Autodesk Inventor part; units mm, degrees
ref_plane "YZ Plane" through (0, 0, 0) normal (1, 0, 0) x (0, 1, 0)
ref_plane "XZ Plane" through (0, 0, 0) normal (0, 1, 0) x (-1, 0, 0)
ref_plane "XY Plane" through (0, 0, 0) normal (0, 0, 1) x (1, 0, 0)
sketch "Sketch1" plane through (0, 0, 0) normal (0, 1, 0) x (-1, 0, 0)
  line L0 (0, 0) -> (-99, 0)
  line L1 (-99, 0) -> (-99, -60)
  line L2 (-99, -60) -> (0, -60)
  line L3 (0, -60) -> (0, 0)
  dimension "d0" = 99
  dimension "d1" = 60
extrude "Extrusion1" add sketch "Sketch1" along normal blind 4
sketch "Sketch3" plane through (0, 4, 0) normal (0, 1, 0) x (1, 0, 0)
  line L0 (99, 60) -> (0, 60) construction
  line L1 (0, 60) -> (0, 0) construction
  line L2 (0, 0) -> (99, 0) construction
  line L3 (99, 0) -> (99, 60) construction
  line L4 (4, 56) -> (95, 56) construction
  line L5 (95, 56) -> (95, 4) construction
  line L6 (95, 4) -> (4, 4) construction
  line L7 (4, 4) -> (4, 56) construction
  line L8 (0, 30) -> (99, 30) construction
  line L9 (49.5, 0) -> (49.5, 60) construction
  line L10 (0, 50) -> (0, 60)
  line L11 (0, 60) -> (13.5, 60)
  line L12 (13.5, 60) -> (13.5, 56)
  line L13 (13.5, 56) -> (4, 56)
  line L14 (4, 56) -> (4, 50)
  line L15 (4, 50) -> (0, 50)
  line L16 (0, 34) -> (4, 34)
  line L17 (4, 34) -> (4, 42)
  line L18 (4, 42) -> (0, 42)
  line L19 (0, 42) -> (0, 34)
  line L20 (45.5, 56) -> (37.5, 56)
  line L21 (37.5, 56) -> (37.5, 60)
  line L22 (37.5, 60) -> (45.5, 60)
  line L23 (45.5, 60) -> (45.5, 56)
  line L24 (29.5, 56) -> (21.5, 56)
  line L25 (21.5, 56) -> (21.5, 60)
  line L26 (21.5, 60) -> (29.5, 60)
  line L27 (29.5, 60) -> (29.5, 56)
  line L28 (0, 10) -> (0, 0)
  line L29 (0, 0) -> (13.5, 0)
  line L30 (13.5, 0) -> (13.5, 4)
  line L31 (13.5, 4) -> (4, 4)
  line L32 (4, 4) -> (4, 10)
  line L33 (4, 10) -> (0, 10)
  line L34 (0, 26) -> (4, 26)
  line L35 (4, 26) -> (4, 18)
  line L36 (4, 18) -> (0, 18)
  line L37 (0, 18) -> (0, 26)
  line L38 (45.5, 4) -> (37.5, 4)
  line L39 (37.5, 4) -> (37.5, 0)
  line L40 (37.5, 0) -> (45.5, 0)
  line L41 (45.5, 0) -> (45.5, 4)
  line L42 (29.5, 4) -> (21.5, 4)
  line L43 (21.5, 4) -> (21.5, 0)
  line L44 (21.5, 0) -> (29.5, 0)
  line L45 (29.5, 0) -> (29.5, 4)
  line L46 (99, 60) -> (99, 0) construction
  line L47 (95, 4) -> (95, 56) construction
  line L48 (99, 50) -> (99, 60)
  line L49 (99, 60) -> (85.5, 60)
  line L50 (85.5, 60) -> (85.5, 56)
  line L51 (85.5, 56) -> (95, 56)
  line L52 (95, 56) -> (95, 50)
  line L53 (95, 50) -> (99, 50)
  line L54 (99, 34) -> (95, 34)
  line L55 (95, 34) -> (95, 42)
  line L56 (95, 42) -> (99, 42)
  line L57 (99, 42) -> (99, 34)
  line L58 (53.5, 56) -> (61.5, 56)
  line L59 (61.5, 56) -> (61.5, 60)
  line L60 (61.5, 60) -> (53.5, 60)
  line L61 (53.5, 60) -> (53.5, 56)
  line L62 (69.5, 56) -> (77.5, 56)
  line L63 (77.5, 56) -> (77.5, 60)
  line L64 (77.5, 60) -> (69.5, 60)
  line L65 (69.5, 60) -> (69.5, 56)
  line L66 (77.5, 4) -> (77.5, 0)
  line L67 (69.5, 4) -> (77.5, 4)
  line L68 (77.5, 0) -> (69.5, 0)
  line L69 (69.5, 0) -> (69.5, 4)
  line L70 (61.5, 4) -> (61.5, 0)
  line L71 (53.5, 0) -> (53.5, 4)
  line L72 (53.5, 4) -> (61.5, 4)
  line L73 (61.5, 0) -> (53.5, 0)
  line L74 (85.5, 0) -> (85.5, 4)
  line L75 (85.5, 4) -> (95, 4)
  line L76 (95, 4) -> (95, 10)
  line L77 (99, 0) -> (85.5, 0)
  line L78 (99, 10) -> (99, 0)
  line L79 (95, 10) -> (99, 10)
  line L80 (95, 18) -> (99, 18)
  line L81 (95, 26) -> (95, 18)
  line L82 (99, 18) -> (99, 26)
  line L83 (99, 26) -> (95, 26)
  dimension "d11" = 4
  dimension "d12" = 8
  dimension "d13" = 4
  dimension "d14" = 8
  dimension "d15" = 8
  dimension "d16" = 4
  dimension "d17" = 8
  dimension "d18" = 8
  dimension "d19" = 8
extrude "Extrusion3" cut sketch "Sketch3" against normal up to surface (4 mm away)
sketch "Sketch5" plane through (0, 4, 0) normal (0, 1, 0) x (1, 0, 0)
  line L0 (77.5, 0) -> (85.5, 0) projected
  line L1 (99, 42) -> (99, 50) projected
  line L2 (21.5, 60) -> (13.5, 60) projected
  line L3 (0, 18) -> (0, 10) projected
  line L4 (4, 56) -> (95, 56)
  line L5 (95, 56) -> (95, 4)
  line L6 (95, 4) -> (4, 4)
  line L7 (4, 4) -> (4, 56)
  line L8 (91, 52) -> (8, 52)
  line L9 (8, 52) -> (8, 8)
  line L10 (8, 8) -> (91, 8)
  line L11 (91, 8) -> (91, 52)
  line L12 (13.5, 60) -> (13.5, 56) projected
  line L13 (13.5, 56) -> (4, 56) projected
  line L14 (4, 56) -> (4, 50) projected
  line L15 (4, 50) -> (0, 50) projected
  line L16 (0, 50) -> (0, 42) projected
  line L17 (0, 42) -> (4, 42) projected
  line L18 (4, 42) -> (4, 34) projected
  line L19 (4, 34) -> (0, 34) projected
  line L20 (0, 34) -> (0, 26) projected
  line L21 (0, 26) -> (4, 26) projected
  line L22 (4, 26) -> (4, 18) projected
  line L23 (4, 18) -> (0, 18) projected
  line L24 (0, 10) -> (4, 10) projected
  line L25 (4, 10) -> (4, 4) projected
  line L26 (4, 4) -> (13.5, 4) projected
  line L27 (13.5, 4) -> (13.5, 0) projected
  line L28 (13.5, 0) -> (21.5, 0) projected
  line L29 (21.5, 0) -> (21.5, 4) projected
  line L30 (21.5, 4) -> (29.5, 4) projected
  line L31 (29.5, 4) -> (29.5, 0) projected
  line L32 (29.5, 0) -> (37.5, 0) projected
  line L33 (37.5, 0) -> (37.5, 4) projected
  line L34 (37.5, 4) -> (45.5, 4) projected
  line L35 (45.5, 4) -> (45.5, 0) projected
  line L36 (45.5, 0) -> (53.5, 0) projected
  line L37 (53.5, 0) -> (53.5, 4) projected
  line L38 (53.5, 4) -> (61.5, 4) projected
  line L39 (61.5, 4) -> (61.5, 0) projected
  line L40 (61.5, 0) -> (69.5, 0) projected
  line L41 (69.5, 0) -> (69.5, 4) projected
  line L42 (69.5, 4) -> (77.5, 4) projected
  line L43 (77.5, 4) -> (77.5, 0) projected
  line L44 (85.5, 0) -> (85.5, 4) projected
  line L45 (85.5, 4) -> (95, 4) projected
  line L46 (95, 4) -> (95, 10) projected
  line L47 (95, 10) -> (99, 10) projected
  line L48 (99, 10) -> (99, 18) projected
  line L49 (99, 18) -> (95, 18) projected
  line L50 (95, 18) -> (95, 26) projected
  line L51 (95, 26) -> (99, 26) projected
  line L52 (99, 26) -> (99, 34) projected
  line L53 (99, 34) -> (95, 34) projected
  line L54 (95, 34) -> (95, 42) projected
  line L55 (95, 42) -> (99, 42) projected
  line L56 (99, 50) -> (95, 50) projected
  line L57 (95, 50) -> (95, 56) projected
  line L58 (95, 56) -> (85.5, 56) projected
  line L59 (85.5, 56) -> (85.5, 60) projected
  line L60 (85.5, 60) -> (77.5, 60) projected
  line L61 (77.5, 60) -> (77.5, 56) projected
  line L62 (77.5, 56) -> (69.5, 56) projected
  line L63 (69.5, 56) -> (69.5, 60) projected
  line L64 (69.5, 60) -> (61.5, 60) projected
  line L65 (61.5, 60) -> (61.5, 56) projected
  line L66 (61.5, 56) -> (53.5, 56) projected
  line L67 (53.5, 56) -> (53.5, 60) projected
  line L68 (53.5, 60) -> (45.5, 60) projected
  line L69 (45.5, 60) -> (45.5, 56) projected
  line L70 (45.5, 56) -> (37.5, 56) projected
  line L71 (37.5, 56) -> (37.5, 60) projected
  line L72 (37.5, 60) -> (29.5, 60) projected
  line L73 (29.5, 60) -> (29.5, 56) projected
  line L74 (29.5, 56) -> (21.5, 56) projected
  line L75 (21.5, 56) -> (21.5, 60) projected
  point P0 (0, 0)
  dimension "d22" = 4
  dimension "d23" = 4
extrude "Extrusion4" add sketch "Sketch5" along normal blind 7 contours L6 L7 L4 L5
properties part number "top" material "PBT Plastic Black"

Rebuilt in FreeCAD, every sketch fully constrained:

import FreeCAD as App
import Part
import Sketcher

V = App.Vector
Q = App.Units.Quantity

doc = App.newDocument("Part")
body = doc.addObject("PartDesign::Body", "Body")

sketch1 = body.newObject("Sketcher::SketchObject", "Sketch")
sketch1.AttachmentSupport = (doc.getObject("XZ_Plane"), [""])
sketch1.MapMode = "FlatFace"
sketch1.addGeometry([
    Part.LineSegment(V(0, -60, 0), V(0, 0, 0)),
    Part.LineSegment(V(0, 0, 0), V(99, 0, 0)),
    Part.LineSegment(V(99, 0, 0), V(99, -60, 0)),
    Part.LineSegment(V(99, -60, 0), V(0, -60, 0)),
], False)
sketch1.addConstraint([
    Sketcher.Constraint("Coincident", 0, 2, 1, 1),
    Sketcher.Constraint("Coincident", 1, 2, 2, 1),
    Sketcher.Constraint("Coincident", 2, 2, 3, 1),
    Sketcher.Constraint("Coincident", 3, 2, 0, 1),
    Sketcher.Constraint("Vertical", 0),
    Sketcher.Constraint("Horizontal", 1),
    Sketcher.Constraint("Vertical", 2),
    Sketcher.Constraint("Horizontal", 3),
    Sketcher.Constraint("Coincident", 0, 2, -1, 1),
    Sketcher.Constraint("DistanceX", 1, 1, 1, 2, Q("99 mm")),
    Sketcher.Constraint("DistanceY", 0, 1, 0, 2, Q("60 mm")),
])
pad1 = body.newObject("PartDesign::Pad", "Pad")
pad1.Profile = sketch1
pad1.Length = 4
pad1.Reversed = True

sketch2 = body.newObject("Sketcher::SketchObject", "Sketch001")
sketch2.AttachmentSupport = (doc.getObject("XZ_Plane"), [""])
sketch2.MapMode = "FlatFace"
sketch2.AttachmentOffset = App.Placement(V(0, 0, -4), App.Rotation())
sketch2.addGeometry([
    Part.LineSegment(V(0, -60, 0), V(0, -50, 0)),
    Part.LineSegment(V(0, -50, 0), V(4, -50, 0)),
    Part.LineSegment(V(4, -50, 0), V(4, -56, 0)),
    Part.LineSegment(V(4, -56, 0), V(13.5, -56, 0)),
    Part.LineSegment(V(13.5, -56, 0), V(13.5, -60, 0)),
    Part.LineSegment(V(13.5, -60, 0), V(0, -60, 0)),
    Part.LineSegment(V(0, -42, 0), V(0, -34, 0)),
    Part.LineSegment(V(0, -34, 0), V(4, -34, 0)),
    Part.LineSegment(V(4, -34, 0), V(4, -42, 0)),
    Part.LineSegment(V(4, -42, 0), V(0, -42, 0)),
    Part.LineSegment(V(37.5, -56, 0), V(45.5, -56, 0)),
    Part.LineSegment(V(45.5, -56, 0), V(45.5, -60, 0)),
    Part.LineSegment(V(45.5, -60, 0), V(37.5, -60, 0)),
    Part.LineSegment(V(37.5, -60, 0), V(37.5, -56, 0)),
    Part.LineSegment(V(21.5, -56, 0), V(29.5, -56, 0)),
    Part.LineSegment(V(29.5, -56, 0), V(29.5, -60, 0)),
    Part.LineSegment(V(29.5, -60, 0), V(21.5, -60, 0)),
    Part.LineSegment(V(21.5, -60, 0), V(21.5, -56, 0)),
    Part.LineSegment(V(4, -10, 0), V(0, -10, 0)),
    Part.LineSegment(V(0, -10, 0), V(0, 0, 0)),
    Part.LineSegment(V(0, 0, 0), V(13.5, 0, 0)),
    Part.LineSegment(V(13.5, 0, 0), V(13.5, -4, 0)),
    Part.LineSegment(V(13.5, -4, 0), V(4, -4, 0)),
    Part.LineSegment(V(4, -4, 0), V(4, -10, 0)),
    Part.LineSegment(V(4, -26, 0), V(0, -26, 0)),
    Part.LineSegment(V(0, -26, 0), V(0, -18, 0)),
    Part.LineSegment(V(0, -18, 0), V(4, -18, 0)),
    Part.LineSegment(V(4, -18, 0), V(4, -26, 0)),
    Part.LineSegment(V(45.5, 0, 0), V(45.5, -4, 0)),
    Part.LineSegment(V(45.5, -4, 0), V(37.5, -4, 0)),
    Part.LineSegment(V(37.5, -4, 0), V(37.5, 0, 0)),
    Part.LineSegment(V(37.5, 0, 0), V(45.5, 0, 0)),
    Part.LineSegment(V(29.5, 0, 0), V(29.5, -4, 0)),
    Part.LineSegment(V(29.5, -4, 0), V(21.5, -4, 0)),
    Part.LineSegment(V(21.5, -4, 0), V(21.5, 0, 0)),
    Part.LineSegment(V(21.5, 0, 0), V(29.5, 0, 0)),
    Part.LineSegment(V(95, -50, 0), V(99, -50, 0)),
    Part.LineSegment(V(99, -50, 0), V(99, -60, 0)),
    Part.LineSegment(V(99, -60, 0), V(85.5, -60, 0)),
    Part.LineSegment(V(85.5, -60, 0), V(85.5, -56, 0)),
    Part.LineSegment(V(85.5, -56, 0), V(95, -56, 0)),
    Part.LineSegment(V(95, -56, 0), V(95, -50, 0)),
    Part.LineSegment(V(95, -34, 0), V(99, -34, 0)),
    Part.LineSegment(V(99, -34, 0), V(99, -42, 0)),
    Part.LineSegment(V(99, -42, 0), V(95, -42, 0)),
    Part.LineSegment(V(95, -42, 0), V(95, -34, 0)),
    Part.LineSegment(V(53.5, -60, 0), V(53.5, -56, 0)),
    Part.LineSegment(V(53.5, -56, 0), V(61.5, -56, 0)),
    Part.LineSegment(V(61.5, -56, 0), V(61.5, -60, 0)),
    Part.LineSegment(V(61.5, -60, 0), V(53.5, -60, 0)),
    Part.LineSegment(V(69.5, -60, 0), V(69.5, -56, 0)),
    Part.LineSegment(V(69.5, -56, 0), V(77.5, -56, 0)),
    Part.LineSegment(V(77.5, -56, 0), V(77.5, -60, 0)),
    Part.LineSegment(V(77.5, -60, 0), V(69.5, -60, 0)),
    Part.LineSegment(V(77.5, 0, 0), V(77.5, -4, 0)),
    Part.LineSegment(V(77.5, -4, 0), V(69.5, -4, 0)),
    Part.LineSegment(V(69.5, -4, 0), V(69.5, 0, 0)),
    Part.LineSegment(V(69.5, 0, 0), V(77.5, 0, 0)),
    Part.LineSegment(V(61.5, 0, 0), V(61.5, -4, 0)),
    Part.LineSegment(V(61.5, -4, 0), V(53.5, -4, 0)),
    Part.LineSegment(V(53.5, -4, 0), V(53.5, 0, 0)),
    Part.LineSegment(V(53.5, 0, 0), V(61.5, 0, 0)),
    Part.LineSegment(V(85.5, -4, 0), V(85.5, 0, 0)),
    Part.LineSegment(V(85.5, 0, 0), V(99, 0, 0)),
    Part.LineSegment(V(99, 0, 0), V(99, -10, 0)),
    Part.LineSegment(V(99, -10, 0), V(95, -10, 0)),
    Part.LineSegment(V(95, -10, 0), V(95, -4, 0)),
    Part.LineSegment(V(95, -4, 0), V(85.5, -4, 0)),
    Part.LineSegment(V(95, -26, 0), V(95, -18, 0)),
    Part.LineSegment(V(95, -18, 0), V(99, -18, 0)),
    Part.LineSegment(V(99, -18, 0), V(99, -26, 0)),
    Part.LineSegment(V(99, -26, 0), V(95, -26, 0)),
], False)
sketch2.addConstraint([
    Sketcher.Constraint("Coincident", 0, 2, 1, 1),
    Sketcher.Constraint("Coincident", 1, 2, 2, 1),
    Sketcher.Constraint("Coincident", 2, 2, 3, 1),
    Sketcher.Constraint("Coincident", 3, 2, 4, 1),
    Sketcher.Constraint("Coincident", 4, 2, 5, 1),
    Sketcher.Constraint("Coincident", 5, 2, 0, 1),
    Sketcher.Constraint("Coincident", 6, 2, 7, 1),
    Sketcher.Constraint("Coincident", 7, 2, 8, 1),
    Sketcher.Constraint("Coincident", 8, 2, 9, 1),
    Sketcher.Constraint("Coincident", 9, 2, 6, 1),
    Sketcher.Constraint("Coincident", 10, 2, 11, 1),
    Sketcher.Constraint("Coincident", 11, 2, 12, 1),
    Sketcher.Constraint("Coincident", 12, 2, 13, 1),
    Sketcher.Constraint("Coincident", 13, 2, 10, 1),
    Sketcher.Constraint("Coincident", 14, 2, 15, 1),
    Sketcher.Constraint("Coincident", 15, 2, 16, 1),
    Sketcher.Constraint("Coincident", 16, 2, 17, 1),
    Sketcher.Constraint("Coincident", 17, 2, 14, 1),
    Sketcher.Constraint("Coincident", 18, 2, 19, 1),
    Sketcher.Constraint("Coincident", 19, 2, 20, 1),
    Sketcher.Constraint("Coincident", 20, 2, 21, 1),
    Sketcher.Constraint("Coincident", 21, 2, 22, 1),
    Sketcher.Constraint("Coincident", 22, 2, 23, 1),
    Sketcher.Constraint("Coincident", 23, 2, 18, 1),
    Sketcher.Constraint("Coincident", 24, 2, 25, 1),
    Sketcher.Constraint("Coincident", 25, 2, 26, 1),
    Sketcher.Constraint("Coincident", 26, 2, 27, 1),
    Sketcher.Constraint("Coincident", 27, 2, 24, 1),
    Sketcher.Constraint("Coincident", 28, 2, 29, 1),
    Sketcher.Constraint("Coincident", 29, 2, 30, 1),
    Sketcher.Constraint("Coincident", 30, 2, 31, 1),
    Sketcher.Constraint("Coincident", 31, 2, 28, 1),
    Sketcher.Constraint("Coincident", 32, 2, 33, 1),
    Sketcher.Constraint("Coincident", 33, 2, 34, 1),
    Sketcher.Constraint("Coincident", 34, 2, 35, 1),
    Sketcher.Constraint("Coincident", 35, 2, 32, 1),
    Sketcher.Constraint("Coincident", 36, 2, 37, 1),
    Sketcher.Constraint("Coincident", 37, 2, 38, 1),
    Sketcher.Constraint("Coincident", 38, 2, 39, 1),
    Sketcher.Constraint("Coincident", 39, 2, 40, 1),
    Sketcher.Constraint("Coincident", 40, 2, 41, 1),
    Sketcher.Constraint("Coincident", 41, 2, 36, 1),
    Sketcher.Constraint("Coincident", 42, 2, 43, 1),
    Sketcher.Constraint("Coincident", 43, 2, 44, 1),
    Sketcher.Constraint("Coincident", 44, 2, 45, 1),
    Sketcher.Constraint("Coincident", 45, 2, 42, 1),
    Sketcher.Constraint("Coincident", 46, 2, 47, 1),
    Sketcher.Constraint("Coincident", 47, 2, 48, 1),
    Sketcher.Constraint("Coincident", 48, 2, 49, 1),
    Sketcher.Constraint("Coincident", 49, 2, 46, 1),
    Sketcher.Constraint("Coincident", 50, 2, 51, 1),
    Sketcher.Constraint("Coincident", 51, 2, 52, 1),
    Sketcher.Constraint("Coincident", 52, 2, 53, 1),
    Sketcher.Constraint("Coincident", 53, 2, 50, 1),
    Sketcher.Constraint("Coincident", 54, 2, 55, 1),
    Sketcher.Constraint("Coincident", 55, 2, 56, 1),
    Sketcher.Constraint("Coincident", 56, 2, 57, 1),
    Sketcher.Constraint("Coincident", 57, 2, 54, 1),
    Sketcher.Constraint("Coincident", 58, 2, 59, 1),
    Sketcher.Constraint("Coincident", 59, 2, 60, 1),
    Sketcher.Constraint("Coincident", 60, 2, 61, 1),
    Sketcher.Constraint("Coincident", 61, 2, 58, 1),
    Sketcher.Constraint("Coincident", 62, 2, 63, 1),
    Sketcher.Constraint("Coincident", 63, 2, 64, 1),
    Sketcher.Constraint("Coincident", 64, 2, 65, 1),
    Sketcher.Constraint("Coincident", 65, 2, 66, 1),
    Sketcher.Constraint("Coincident", 66, 2, 67, 1),
    Sketcher.Constraint("Coincident", 67, 2, 62, 1),
    Sketcher.Constraint("Coincident", 68, 2, 69, 1),
    Sketcher.Constraint("Coincident", 69, 2, 70, 1),
    Sketcher.Constraint("Coincident", 70, 2, 71, 1),
    Sketcher.Constraint("Coincident", 71, 2, 68, 1),
    Sketcher.Constraint("Vertical", 0),
    Sketcher.Constraint("Horizontal", 1),
    Sketcher.Constraint("Vertical", 2),
    Sketcher.Constraint("Horizontal", 3),
    Sketcher.Constraint("Vertical", 4),
    Sketcher.Constraint("Horizontal", 5),
    Sketcher.Constraint("Vertical", 6),
    Sketcher.Constraint("Horizontal", 7),
    Sketcher.Constraint("Vertical", 8),
    Sketcher.Constraint("Horizontal", 9),
    Sketcher.Constraint("Horizontal", 10),
    Sketcher.Constraint("Vertical", 11),
    Sketcher.Constraint("Horizontal", 12),
    Sketcher.Constraint("Vertical", 13),
    Sketcher.Constraint("Horizontal", 14),
    Sketcher.Constraint("Vertical", 15),
    Sketcher.Constraint("Horizontal", 16),
    Sketcher.Constraint("Vertical", 17),
    Sketcher.Constraint("Horizontal", 18),
    Sketcher.Constraint("Vertical", 19),
    Sketcher.Constraint("Horizontal", 20),
    Sketcher.Constraint("Vertical", 21),
    Sketcher.Constraint("Horizontal", 22),
    Sketcher.Constraint("Vertical", 23),
    Sketcher.Constraint("Horizontal", 24),
    Sketcher.Constraint("Vertical", 25),
    Sketcher.Constraint("Horizontal", 26),
    Sketcher.Constraint("Vertical", 27),
    Sketcher.Constraint("Vertical", 28),
    Sketcher.Constraint("Horizontal", 29),
    Sketcher.Constraint("Vertical", 30),
    Sketcher.Constraint("Horizontal", 31),
    Sketcher.Constraint("Vertical", 32),
    Sketcher.Constraint("Horizontal", 33),
    Sketcher.Constraint("Vertical", 34),
    Sketcher.Constraint("Horizontal", 35),
    Sketcher.Constraint("Horizontal", 36),
    Sketcher.Constraint("Vertical", 37),
    Sketcher.Constraint("Horizontal", 38),
    Sketcher.Constraint("Vertical", 39),
    Sketcher.Constraint("Horizontal", 40),
    Sketcher.Constraint("Vertical", 41),
    Sketcher.Constraint("Horizontal", 42),
    Sketcher.Constraint("Vertical", 43),
    Sketcher.Constraint("Horizontal", 44),
    Sketcher.Constraint("Vertical", 45),
    Sketcher.Constraint("Vertical", 46),
    Sketcher.Constraint("Horizontal", 47),
    Sketcher.Constraint("Vertical", 48),
    Sketcher.Constraint("Horizontal", 49),
    Sketcher.Constraint("Vertical", 50),
    Sketcher.Constraint("Horizontal", 51),
    Sketcher.Constraint("Vertical", 52),
    Sketcher.Constraint("Horizontal", 53),
    Sketcher.Constraint("Vertical", 54),
    Sketcher.Constraint("Horizontal", 55),
    Sketcher.Constraint("Vertical", 56),
    Sketcher.Constraint("Horizontal", 57),
    Sketcher.Constraint("Vertical", 58),
    Sketcher.Constraint("Horizontal", 59),
    Sketcher.Constraint("Vertical", 60),
    Sketcher.Constraint("Horizontal", 61),
    Sketcher.Constraint("Vertical", 62),
    Sketcher.Constraint("Horizontal", 63),
    Sketcher.Constraint("Vertical", 64),
    Sketcher.Constraint("Horizontal", 65),
    Sketcher.Constraint("Vertical", 66),
    Sketcher.Constraint("Horizontal", 67),
    Sketcher.Constraint("Vertical", 68),
    Sketcher.Constraint("Horizontal", 69),
    Sketcher.Constraint("Vertical", 70),
    Sketcher.Constraint("Horizontal", 71),
    Sketcher.Constraint("Coincident", 19, 2, -1, 1),
    Sketcher.Constraint("PointOnObject", 0, 2, -2),
    Sketcher.Constraint("PointOnObject", 6, 2, -2),
    Sketcher.Constraint("PointOnObject", 24, 2, -2),
    Sketcher.Constraint("PointOnObject", 30, 2, -1),
    Sketcher.Constraint("PointOnObject", 34, 2, -1),
    Sketcher.Constraint("PointOnObject", 56, 2, -1),
    Sketcher.Constraint("PointOnObject", 60, 2, -1),
    Sketcher.Constraint("PointOnObject", 62, 2, -1),
    Sketcher.Constraint("Horizontal", 3, 2, 10, 2),
    Sketcher.Constraint("Horizontal", 5, 2, 11, 2),
    Sketcher.Constraint("Horizontal", 13, 2, 14, 2),
    Sketcher.Constraint("Horizontal", 12, 2, 15, 2),
    Sketcher.Constraint("Horizontal", 22, 2, 28, 2),
    Sketcher.Constraint("Horizontal", 29, 2, 32, 2),
    Sketcher.Constraint("Horizontal", 1, 2, 36, 2),
    Sketcher.Constraint("Horizontal", 16, 2, 37, 2),
    Sketcher.Constraint("Horizontal", 17, 2, 39, 2),
    Sketcher.Constraint("Horizontal", 7, 2, 42, 2),
    Sketcher.Constraint("Horizontal", 9, 2, 43, 2),
    Sketcher.Constraint("Horizontal", 40, 2, 46, 2),
    Sketcher.Constraint("Horizontal", 38, 2, 48, 2),
    Sketcher.Constraint("Horizontal", 47, 2, 50, 2),
    Sketcher.Constraint("Horizontal", 49, 2, 52, 2),
    Sketcher.Constraint("Horizontal", 33, 2, 54, 2),
    Sketcher.Constraint("Horizontal", 55, 2, 58, 2),
    Sketcher.Constraint("Horizontal", 23, 2, 64, 2),
    Sketcher.Constraint("Horizontal", 59, 2, 66, 2),
    Sketcher.Constraint("Horizontal", 26, 2, 68, 2),
    Sketcher.Constraint("Horizontal", 27, 2, 70, 2),
    Sketcher.Constraint("Vertical", 2, 2, 7, 2),
    Sketcher.Constraint("Vertical", 4, 2, 20, 2),
    Sketcher.Constraint("Vertical", 8, 2, 22, 2),
    Sketcher.Constraint("Vertical", 23, 2, 26, 2),
    Sketcher.Constraint("Vertical", 11, 2, 28, 2),
    Sketcher.Constraint("Vertical", 13, 2, 29, 2),
    Sketcher.Constraint("Vertical", 15, 2, 32, 2),
    Sketcher.Constraint("Vertical", 17, 2, 33, 2),
    Sketcher.Constraint("Vertical", 37, 2, 42, 2),
    Sketcher.Constraint("Vertical", 41, 2, 44, 2),
    Sketcher.Constraint("Vertical", 52, 2, 54, 2),
    Sketcher.Constraint("Vertical", 53, 2, 55, 2),
    Sketcher.Constraint("Vertical", 48, 2, 58, 2),
    Sketcher.Constraint("Vertical", 49, 2, 59, 2),
    Sketcher.Constraint("Vertical", 39, 2, 62, 2),
    Sketcher.Constraint("Vertical", 43, 2, 63, 2),
    Sketcher.Constraint("Vertical", 45, 2, 65, 2),
    Sketcher.Constraint("Vertical", 66, 2, 68, 2),
    Sketcher.Constraint("Vertical", 64, 2, 69, 2),
    Sketcher.Constraint("Equal", 12, 14),
    Sketcher.Constraint("Equal", 26, 36),
    Sketcher.Constraint("Equal", 20, 38),
    Sketcher.Constraint("Equal", 35, 47),
    Sketcher.Constraint("Equal", 49, 51),
    Sketcher.Constraint("Equal", 71, 4),
    Sketcher.Constraint("Equal", 61, 6),
    Sketcher.Constraint("Equal", 0, 19),
    Sketcher.Constraint("Equal", 17, 21),
    Sketcher.Constraint("Equal", 8, 25),
    Sketcher.Constraint("DistanceX", 1, 1, 1, 2, Q("4 mm")),
    Sketcher.Constraint("DistanceX", 10, 1, 10, 2, Q("8 mm")),
    Sketcher.Constraint("DistanceY", 0, 1, 0, 2, Q("10 mm")),
    Sketcher.Constraint("DistanceX", 3, 1, 3, 2, Q("9.5 mm")),
    Sketcher.Constraint("DistanceY", 0, 2, -1, 1, Q("50 mm")),
    Sketcher.Constraint("DistanceY", 6, 2, -1, 1, Q("34 mm")),
    Sketcher.Constraint("DistanceY", 24, 2, -1, 1, Q("26 mm")),
    Sketcher.Constraint("DistanceX", -1, 1, 36, 2, Q("99 mm")),
    Sketcher.Constraint("DistanceX", -1, 1, 10, 2, Q("45.5 mm")),
    Sketcher.Constraint("DistanceX", -1, 1, 14, 2, Q("29.5 mm")),
    Sketcher.Constraint("DistanceX", -1, 1, 46, 2, Q("53.5 mm")),
    Sketcher.Constraint("DistanceX", -1, 1, 50, 2, Q("69.5 mm")),
])
pocket1 = body.newObject("PartDesign::Pocket", "Pocket")
pocket1.Profile = sketch2
pocket1.Length = 4
pocket1.Reversed = True

sketch3 = body.newObject("Sketcher::SketchObject", "Sketch002")
sketch3.AttachmentSupport = (doc.getObject("XZ_Plane"), [""])
sketch3.MapMode = "FlatFace"
sketch3.AttachmentOffset = App.Placement(V(0, 0, -4), App.Rotation())
sketch3.addGeometry([
    Part.LineSegment(V(4, -4, 0), V(95, -4, 0)),
    Part.LineSegment(V(95, -4, 0), V(95, -56, 0)),
    Part.LineSegment(V(95, -56, 0), V(4, -56, 0)),
    Part.LineSegment(V(4, -56, 0), V(4, -4, 0)),
    Part.LineSegment(V(8, -52, 0), V(91, -52, 0)),
    Part.LineSegment(V(91, -52, 0), V(91, -8, 0)),
    Part.LineSegment(V(91, -8, 0), V(8, -8, 0)),
    Part.LineSegment(V(8, -8, 0), V(8, -52, 0)),
], False)
sketch3.addConstraint([
    Sketcher.Constraint("Coincident", 0, 2, 1, 1),
    Sketcher.Constraint("Coincident", 1, 2, 2, 1),
    Sketcher.Constraint("Coincident", 2, 2, 3, 1),
    Sketcher.Constraint("Coincident", 3, 2, 0, 1),
    Sketcher.Constraint("Coincident", 4, 2, 5, 1),
    Sketcher.Constraint("Coincident", 5, 2, 6, 1),
    Sketcher.Constraint("Coincident", 6, 2, 7, 1),
    Sketcher.Constraint("Coincident", 7, 2, 4, 1),
    Sketcher.Constraint("Horizontal", 0),
    Sketcher.Constraint("Vertical", 1),
    Sketcher.Constraint("Horizontal", 2),
    Sketcher.Constraint("Vertical", 3),
    Sketcher.Constraint("Horizontal", 4),
    Sketcher.Constraint("Vertical", 5),
    Sketcher.Constraint("Horizontal", 6),
    Sketcher.Constraint("Vertical", 7),
    Sketcher.Constraint("DistanceY", 0, 2, -1, 1, Q("4 mm")),
    Sketcher.Constraint("DistanceX", -1, 1, 2, 2, Q("4 mm")),
    Sketcher.Constraint("DistanceX", 4, 2, 1, 2, Q("4 mm")),
    Sketcher.Constraint("DistanceY", 1, 2, 4, 2, Q("4 mm")),
    Sketcher.Constraint("DistanceY", 5, 2, 0, 2, Q("4 mm")),
    Sketcher.Constraint("DistanceX", 3, 2, 6, 2, Q("4 mm")),
    Sketcher.Constraint("DistanceX", 0, 1, 0, 2, Q("91 mm")),
    Sketcher.Constraint("DistanceY", 1, 2, 1, 1, Q("52 mm")),
])
pad2 = body.newObject("PartDesign::Pad", "Pad001")
pad2.Profile = sketch3
pad2.Length = 7
pad2.Reversed = True

doc.recompute()
